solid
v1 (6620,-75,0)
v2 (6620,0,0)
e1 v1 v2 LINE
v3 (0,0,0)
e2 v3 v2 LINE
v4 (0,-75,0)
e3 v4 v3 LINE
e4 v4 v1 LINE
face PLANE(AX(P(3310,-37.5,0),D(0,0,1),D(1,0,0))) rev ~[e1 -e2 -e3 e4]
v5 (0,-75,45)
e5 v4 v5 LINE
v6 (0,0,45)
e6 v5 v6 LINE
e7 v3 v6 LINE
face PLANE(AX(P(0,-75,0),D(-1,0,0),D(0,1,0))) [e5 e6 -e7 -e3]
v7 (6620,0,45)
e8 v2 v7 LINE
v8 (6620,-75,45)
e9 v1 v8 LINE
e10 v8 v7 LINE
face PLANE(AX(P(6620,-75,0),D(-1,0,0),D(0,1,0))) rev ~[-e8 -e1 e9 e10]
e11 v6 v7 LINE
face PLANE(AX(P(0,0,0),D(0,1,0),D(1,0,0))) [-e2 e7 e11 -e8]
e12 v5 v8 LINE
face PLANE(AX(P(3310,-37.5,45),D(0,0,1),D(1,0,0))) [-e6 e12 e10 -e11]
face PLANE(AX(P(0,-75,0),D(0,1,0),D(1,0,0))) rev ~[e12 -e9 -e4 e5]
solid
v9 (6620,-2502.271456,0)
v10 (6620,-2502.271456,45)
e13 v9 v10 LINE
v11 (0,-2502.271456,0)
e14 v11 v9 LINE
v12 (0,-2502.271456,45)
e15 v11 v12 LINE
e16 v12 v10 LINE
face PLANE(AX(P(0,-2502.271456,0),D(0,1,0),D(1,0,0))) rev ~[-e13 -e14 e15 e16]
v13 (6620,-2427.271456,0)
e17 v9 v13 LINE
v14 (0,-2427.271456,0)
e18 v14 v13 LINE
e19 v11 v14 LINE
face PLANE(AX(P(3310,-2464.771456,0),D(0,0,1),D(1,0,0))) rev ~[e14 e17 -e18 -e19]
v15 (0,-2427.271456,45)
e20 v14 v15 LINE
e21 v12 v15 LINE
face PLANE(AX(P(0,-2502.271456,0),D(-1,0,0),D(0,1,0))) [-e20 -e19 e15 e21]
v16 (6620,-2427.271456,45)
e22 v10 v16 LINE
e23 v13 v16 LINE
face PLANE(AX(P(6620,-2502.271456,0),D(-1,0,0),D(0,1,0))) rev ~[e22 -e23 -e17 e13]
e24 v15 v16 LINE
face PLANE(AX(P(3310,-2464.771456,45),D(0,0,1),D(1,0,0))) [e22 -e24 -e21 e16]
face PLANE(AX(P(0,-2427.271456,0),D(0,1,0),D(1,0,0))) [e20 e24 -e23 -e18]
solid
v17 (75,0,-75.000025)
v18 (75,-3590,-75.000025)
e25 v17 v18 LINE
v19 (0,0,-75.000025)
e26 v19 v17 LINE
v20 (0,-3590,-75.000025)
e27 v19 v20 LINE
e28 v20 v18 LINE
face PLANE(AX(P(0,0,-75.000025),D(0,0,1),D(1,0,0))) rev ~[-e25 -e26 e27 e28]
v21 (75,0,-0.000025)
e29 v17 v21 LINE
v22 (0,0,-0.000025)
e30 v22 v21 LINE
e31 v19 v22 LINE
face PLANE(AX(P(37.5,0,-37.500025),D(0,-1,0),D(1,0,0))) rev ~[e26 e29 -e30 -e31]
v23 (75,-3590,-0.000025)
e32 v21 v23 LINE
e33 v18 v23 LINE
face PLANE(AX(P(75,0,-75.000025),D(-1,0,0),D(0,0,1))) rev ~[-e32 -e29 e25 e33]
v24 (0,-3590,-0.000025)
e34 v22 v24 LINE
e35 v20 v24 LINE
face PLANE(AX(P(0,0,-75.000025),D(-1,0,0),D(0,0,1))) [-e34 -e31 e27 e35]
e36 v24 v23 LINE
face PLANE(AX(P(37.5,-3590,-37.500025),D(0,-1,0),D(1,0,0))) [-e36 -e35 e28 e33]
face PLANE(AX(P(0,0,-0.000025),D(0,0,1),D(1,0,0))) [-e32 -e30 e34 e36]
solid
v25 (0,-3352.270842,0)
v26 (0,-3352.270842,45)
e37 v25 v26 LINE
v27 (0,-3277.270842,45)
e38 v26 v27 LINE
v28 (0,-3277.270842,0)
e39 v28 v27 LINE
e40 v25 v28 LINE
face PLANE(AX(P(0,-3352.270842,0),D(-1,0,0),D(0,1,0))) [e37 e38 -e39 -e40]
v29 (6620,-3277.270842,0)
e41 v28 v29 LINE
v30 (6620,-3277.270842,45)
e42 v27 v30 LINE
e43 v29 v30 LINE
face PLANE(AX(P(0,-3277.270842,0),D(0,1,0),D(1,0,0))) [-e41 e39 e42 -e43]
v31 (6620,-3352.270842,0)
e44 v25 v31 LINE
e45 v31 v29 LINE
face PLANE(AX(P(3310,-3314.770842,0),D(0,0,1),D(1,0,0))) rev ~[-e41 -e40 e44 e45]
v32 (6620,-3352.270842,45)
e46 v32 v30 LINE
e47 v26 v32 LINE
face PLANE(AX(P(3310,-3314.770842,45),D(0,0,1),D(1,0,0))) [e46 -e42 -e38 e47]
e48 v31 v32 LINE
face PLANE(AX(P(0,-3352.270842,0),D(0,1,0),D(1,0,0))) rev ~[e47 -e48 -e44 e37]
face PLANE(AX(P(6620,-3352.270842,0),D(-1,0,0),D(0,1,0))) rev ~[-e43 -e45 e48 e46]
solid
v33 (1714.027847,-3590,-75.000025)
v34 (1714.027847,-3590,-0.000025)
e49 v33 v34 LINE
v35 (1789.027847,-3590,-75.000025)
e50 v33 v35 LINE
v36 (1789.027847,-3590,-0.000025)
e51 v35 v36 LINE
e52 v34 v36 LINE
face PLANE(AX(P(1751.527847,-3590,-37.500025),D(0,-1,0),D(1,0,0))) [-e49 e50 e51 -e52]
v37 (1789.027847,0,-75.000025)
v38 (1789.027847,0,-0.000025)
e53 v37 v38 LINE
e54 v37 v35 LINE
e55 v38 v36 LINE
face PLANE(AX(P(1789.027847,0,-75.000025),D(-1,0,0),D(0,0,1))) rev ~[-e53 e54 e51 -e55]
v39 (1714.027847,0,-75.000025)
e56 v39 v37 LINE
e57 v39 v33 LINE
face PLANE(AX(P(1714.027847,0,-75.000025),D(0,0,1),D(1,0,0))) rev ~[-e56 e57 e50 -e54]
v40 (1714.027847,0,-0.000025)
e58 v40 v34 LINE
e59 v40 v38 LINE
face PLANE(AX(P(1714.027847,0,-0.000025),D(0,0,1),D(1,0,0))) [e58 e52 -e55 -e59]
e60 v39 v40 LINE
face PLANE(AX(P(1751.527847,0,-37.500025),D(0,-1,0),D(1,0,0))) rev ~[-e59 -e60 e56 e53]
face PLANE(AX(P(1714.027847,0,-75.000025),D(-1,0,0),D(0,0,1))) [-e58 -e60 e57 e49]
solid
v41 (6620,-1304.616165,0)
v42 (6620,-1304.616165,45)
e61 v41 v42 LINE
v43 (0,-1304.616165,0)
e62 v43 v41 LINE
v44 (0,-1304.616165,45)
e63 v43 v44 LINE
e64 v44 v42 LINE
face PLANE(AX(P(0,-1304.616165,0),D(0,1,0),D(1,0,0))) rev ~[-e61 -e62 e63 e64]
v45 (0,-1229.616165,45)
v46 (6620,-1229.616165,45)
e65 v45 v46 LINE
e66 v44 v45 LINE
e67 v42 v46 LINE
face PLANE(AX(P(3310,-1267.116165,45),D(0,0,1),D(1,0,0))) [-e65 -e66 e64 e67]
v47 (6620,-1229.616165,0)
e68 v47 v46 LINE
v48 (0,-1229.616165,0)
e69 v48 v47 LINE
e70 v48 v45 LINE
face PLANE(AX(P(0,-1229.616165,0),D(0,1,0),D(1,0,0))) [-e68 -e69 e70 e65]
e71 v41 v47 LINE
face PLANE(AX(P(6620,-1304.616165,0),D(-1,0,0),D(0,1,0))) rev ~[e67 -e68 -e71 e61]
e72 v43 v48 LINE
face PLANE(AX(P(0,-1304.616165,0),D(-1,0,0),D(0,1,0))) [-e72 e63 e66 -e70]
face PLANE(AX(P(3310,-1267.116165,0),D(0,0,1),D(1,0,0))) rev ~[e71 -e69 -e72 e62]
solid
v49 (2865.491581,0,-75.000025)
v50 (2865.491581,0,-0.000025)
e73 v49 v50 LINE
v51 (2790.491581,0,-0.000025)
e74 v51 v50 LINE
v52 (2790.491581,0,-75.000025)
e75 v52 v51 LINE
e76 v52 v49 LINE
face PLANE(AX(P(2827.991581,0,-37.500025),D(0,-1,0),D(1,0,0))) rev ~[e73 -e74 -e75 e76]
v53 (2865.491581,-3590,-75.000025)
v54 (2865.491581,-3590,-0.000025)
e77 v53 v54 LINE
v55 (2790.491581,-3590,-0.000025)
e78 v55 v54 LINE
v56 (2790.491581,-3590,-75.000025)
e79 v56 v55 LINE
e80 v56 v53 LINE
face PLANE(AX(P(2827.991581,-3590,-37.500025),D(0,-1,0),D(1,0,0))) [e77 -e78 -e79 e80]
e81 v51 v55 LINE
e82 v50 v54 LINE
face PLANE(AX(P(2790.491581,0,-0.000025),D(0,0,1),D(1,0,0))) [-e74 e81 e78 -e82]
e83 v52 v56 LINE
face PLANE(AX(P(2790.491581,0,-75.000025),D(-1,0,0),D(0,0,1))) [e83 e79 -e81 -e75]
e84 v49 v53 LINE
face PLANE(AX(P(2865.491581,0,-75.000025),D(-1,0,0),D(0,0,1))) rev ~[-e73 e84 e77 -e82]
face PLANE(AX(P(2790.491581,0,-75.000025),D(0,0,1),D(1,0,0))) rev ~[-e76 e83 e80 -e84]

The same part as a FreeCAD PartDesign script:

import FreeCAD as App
import Part
import Sketcher
from FreeCAD import Vector


def add_polygon(sketch, points):
    """Adds a closed chain of lines whose ends are joined by coincident constraints."""
    first, n = sketch.GeometryCount, len(points)
    for a, b in zip(points, points[1:] + points[:1]):
        sketch.addGeometry(Part.LineSegment(App.Vector(*a, 0), App.Vector(*b, 0)), False)
    for i in range(n):
        sketch.addConstraint(Sketcher.Constraint("Coincident", first + i, 2, first + (i + 1) % n, 1))

doc = App.newDocument("Part")
params = doc.addObject("Spreadsheet::Sheet", "Params")
for row, (alias, value) in enumerate([
    ("sketch1_width", "75 mm"),
    ("pad1_length", "3590 mm"),
    ("sketch2_width", "6620 mm"),
    ("sketch2_height", "75 mm"),
    ("pad2_length", "45 mm"),
], start=1):
    params.set(f"A{row}", alias)
    params.set(f"B{row}", "=" + value)
    params.setAlias(f"B{row}", alias)

body = doc.addObject("PartDesign::Body", "Body")
body.AllowCompound = True

sketch1 = doc.addObject("Sketcher::SketchObject", "Sketch")
body.addObject(sketch1)
sketch1.AttachmentSupport = (doc.XZ_Plane, [""])
sketch1.MapMode = "FlatFace"
add_polygon(sketch1, [(0, -0.000025), (0, -75.000025), (75, -75.000025), (75, -0.000025)])
add_polygon(sketch1, [(2790.491581, -0.000025), (2790.491581, -75.000025), (2865.491581, -75.000025), (2865.491581, -0.000025)])
add_polygon(sketch1, [(1714.027847, -0.000025), (1714.027847, -75.000025), (1789.027847, -75.000025), (1789.027847, -0.000025)])
sketch1.addConstraint([
    Sketcher.Constraint("Vertical", 0),
    Sketcher.Constraint("Horizontal", 1),
    Sketcher.Constraint("Vertical", 2),
    Sketcher.Constraint("Horizontal", 3),
    Sketcher.Constraint("Vertical", 4),
    Sketcher.Constraint("Horizontal", 5),
    Sketcher.Constraint("Vertical", 6),
    Sketcher.Constraint("Horizontal", 7),
    Sketcher.Constraint("Vertical", 8),
    Sketcher.Constraint("Horizontal", 9),
    Sketcher.Constraint("Vertical", 10),
    Sketcher.Constraint("Horizontal", 11),
    Sketcher.Constraint("PointOnObject", 0, 2, -2),
    Sketcher.Constraint("Horizontal", 1, 2, 4, 2),
    Sketcher.Constraint("Horizontal", 3, 2, 6, 2),
    Sketcher.Constraint("Horizontal", 5, 2, 8, 2),
    Sketcher.Constraint("Horizontal", 7, 2, 10, 2),
    Sketcher.Constraint("Equal", 3, 5),
    Sketcher.Constraint("Equal", 7, 9),
    Sketcher.Constraint("Equal", 11, 0),
    Sketcher.Constraint("DistanceX", 1, 1, 1, 2, 75.0),
    Sketcher.Constraint("DistanceX", -1, 1, 4, 2, 2790.491581),
    Sketcher.Constraint("DistanceY", 0, 2, -1, 1, 75.000025),
    Sketcher.Constraint("DistanceX", -1, 1, 8, 2, 1714.027847),
])
sketch1.setExpression("Constraints[32]", "Params.sketch1_width")
pad1 = doc.addObject("PartDesign::Pad", "Pad")
body.addObject(pad1)
pad1.Profile = sketch1
pad1.setExpression("Length", "Params.pad1_length")
body2 = doc.addObject("PartDesign::Body", "Body001")
body2.AllowCompound = True

sketch2 = doc.addObject("Sketcher::SketchObject", "Sketch001")
body2.addObject(sketch2)
sketch2.AttachmentSupport = (doc.getObject("XY_Plane001"), [""])
sketch2.MapMode = "FlatFace"
add_polygon(sketch2, [(0, 0), (0, -75), (6620, -75), (6620, 0)])
add_polygon(sketch2, [(0, -2427.271456), (0, -2502.271456), (6620, -2502.271456), (6620, -2427.271456)])
add_polygon(sketch2, [(0, -1229.616165), (0, -1304.616165), (6620, -1304.616165), (6620, -1229.616165)])
add_polygon(sketch2, [(0, -3277.270842), (0, -3352.270842), (6620, -3352.270842), (6620, -3277.270842)])
sketch2.addConstraint([
    Sketcher.Constraint("Vertical", 0),
    Sketcher.Constraint("Horizontal", 1),
    Sketcher.Constraint("Vertical", 2),
    Sketcher.Constraint("Horizontal", 3),
    Sketcher.Constraint("Vertical", 4),
    Sketcher.Constraint("Horizontal", 5),
    Sketcher.Constraint("Vertical", 6),
    Sketcher.Constraint("Horizontal", 7),
    Sketcher.Constraint("Vertical", 8),
    Sketcher.Constraint("Horizontal", 9),
    Sketcher.Constraint("Vertical", 10),
    Sketcher.Constraint("Horizontal", 11),
    Sketcher.Constraint("Vertical", 12),
    Sketcher.Constraint("Horizontal", 13),
    Sketcher.Constraint("Vertical", 14),
    Sketcher.Constraint("Horizontal", 15),
    Sketcher.Constraint("Coincident", 3, 2, -1, 1),
    Sketcher.Constraint("PointOnObject", 4, 2, -2),
    Sketcher.Constraint("PointOnObject", 8, 2, -2),
    Sketcher.Constraint("PointOnObject", 12, 2, -2),
    Sketcher.Constraint("Vertical", 2, 2, 5, 2),
    Sketcher.Constraint("Vertical", 6, 2, 9, 2),
    Sketcher.Constraint("Vertical", 10, 2, 13, 2),
    Sketcher.Constraint("Equal", 2, 4),
    Sketcher.Constraint("Equal", 6, 8),
    Sketcher.Constraint("Equal", 10, 12),
    Sketcher.Constraint("DistanceX", 1, 1, 1, 2, 6620.0),
    Sketcher.Constraint("DistanceY", 0, 2, 0, 1, 75.0),
    Sketcher.Constraint("DistanceY", 12, 2, -1, 1, 3352.270842),
    Sketcher.Constraint("DistanceY", 7, 2, 8, 2, 1122.655291),
    Sketcher.Constraint("DistanceY", 4, 2, -1, 1, 2502.271456),
])
sketch2.setExpression("Constraints[42]", "Params.sketch2_width")
sketch2.setExpression("Constraints[43]", "Params.sketch2_height")
pad2 = doc.addObject("PartDesign::Pad", "Pad001")
body2.addObject(pad2)
pad2.Profile = sketch2
pad2.setExpression("Length", "Params.pad2_length")

doc.recompute()
